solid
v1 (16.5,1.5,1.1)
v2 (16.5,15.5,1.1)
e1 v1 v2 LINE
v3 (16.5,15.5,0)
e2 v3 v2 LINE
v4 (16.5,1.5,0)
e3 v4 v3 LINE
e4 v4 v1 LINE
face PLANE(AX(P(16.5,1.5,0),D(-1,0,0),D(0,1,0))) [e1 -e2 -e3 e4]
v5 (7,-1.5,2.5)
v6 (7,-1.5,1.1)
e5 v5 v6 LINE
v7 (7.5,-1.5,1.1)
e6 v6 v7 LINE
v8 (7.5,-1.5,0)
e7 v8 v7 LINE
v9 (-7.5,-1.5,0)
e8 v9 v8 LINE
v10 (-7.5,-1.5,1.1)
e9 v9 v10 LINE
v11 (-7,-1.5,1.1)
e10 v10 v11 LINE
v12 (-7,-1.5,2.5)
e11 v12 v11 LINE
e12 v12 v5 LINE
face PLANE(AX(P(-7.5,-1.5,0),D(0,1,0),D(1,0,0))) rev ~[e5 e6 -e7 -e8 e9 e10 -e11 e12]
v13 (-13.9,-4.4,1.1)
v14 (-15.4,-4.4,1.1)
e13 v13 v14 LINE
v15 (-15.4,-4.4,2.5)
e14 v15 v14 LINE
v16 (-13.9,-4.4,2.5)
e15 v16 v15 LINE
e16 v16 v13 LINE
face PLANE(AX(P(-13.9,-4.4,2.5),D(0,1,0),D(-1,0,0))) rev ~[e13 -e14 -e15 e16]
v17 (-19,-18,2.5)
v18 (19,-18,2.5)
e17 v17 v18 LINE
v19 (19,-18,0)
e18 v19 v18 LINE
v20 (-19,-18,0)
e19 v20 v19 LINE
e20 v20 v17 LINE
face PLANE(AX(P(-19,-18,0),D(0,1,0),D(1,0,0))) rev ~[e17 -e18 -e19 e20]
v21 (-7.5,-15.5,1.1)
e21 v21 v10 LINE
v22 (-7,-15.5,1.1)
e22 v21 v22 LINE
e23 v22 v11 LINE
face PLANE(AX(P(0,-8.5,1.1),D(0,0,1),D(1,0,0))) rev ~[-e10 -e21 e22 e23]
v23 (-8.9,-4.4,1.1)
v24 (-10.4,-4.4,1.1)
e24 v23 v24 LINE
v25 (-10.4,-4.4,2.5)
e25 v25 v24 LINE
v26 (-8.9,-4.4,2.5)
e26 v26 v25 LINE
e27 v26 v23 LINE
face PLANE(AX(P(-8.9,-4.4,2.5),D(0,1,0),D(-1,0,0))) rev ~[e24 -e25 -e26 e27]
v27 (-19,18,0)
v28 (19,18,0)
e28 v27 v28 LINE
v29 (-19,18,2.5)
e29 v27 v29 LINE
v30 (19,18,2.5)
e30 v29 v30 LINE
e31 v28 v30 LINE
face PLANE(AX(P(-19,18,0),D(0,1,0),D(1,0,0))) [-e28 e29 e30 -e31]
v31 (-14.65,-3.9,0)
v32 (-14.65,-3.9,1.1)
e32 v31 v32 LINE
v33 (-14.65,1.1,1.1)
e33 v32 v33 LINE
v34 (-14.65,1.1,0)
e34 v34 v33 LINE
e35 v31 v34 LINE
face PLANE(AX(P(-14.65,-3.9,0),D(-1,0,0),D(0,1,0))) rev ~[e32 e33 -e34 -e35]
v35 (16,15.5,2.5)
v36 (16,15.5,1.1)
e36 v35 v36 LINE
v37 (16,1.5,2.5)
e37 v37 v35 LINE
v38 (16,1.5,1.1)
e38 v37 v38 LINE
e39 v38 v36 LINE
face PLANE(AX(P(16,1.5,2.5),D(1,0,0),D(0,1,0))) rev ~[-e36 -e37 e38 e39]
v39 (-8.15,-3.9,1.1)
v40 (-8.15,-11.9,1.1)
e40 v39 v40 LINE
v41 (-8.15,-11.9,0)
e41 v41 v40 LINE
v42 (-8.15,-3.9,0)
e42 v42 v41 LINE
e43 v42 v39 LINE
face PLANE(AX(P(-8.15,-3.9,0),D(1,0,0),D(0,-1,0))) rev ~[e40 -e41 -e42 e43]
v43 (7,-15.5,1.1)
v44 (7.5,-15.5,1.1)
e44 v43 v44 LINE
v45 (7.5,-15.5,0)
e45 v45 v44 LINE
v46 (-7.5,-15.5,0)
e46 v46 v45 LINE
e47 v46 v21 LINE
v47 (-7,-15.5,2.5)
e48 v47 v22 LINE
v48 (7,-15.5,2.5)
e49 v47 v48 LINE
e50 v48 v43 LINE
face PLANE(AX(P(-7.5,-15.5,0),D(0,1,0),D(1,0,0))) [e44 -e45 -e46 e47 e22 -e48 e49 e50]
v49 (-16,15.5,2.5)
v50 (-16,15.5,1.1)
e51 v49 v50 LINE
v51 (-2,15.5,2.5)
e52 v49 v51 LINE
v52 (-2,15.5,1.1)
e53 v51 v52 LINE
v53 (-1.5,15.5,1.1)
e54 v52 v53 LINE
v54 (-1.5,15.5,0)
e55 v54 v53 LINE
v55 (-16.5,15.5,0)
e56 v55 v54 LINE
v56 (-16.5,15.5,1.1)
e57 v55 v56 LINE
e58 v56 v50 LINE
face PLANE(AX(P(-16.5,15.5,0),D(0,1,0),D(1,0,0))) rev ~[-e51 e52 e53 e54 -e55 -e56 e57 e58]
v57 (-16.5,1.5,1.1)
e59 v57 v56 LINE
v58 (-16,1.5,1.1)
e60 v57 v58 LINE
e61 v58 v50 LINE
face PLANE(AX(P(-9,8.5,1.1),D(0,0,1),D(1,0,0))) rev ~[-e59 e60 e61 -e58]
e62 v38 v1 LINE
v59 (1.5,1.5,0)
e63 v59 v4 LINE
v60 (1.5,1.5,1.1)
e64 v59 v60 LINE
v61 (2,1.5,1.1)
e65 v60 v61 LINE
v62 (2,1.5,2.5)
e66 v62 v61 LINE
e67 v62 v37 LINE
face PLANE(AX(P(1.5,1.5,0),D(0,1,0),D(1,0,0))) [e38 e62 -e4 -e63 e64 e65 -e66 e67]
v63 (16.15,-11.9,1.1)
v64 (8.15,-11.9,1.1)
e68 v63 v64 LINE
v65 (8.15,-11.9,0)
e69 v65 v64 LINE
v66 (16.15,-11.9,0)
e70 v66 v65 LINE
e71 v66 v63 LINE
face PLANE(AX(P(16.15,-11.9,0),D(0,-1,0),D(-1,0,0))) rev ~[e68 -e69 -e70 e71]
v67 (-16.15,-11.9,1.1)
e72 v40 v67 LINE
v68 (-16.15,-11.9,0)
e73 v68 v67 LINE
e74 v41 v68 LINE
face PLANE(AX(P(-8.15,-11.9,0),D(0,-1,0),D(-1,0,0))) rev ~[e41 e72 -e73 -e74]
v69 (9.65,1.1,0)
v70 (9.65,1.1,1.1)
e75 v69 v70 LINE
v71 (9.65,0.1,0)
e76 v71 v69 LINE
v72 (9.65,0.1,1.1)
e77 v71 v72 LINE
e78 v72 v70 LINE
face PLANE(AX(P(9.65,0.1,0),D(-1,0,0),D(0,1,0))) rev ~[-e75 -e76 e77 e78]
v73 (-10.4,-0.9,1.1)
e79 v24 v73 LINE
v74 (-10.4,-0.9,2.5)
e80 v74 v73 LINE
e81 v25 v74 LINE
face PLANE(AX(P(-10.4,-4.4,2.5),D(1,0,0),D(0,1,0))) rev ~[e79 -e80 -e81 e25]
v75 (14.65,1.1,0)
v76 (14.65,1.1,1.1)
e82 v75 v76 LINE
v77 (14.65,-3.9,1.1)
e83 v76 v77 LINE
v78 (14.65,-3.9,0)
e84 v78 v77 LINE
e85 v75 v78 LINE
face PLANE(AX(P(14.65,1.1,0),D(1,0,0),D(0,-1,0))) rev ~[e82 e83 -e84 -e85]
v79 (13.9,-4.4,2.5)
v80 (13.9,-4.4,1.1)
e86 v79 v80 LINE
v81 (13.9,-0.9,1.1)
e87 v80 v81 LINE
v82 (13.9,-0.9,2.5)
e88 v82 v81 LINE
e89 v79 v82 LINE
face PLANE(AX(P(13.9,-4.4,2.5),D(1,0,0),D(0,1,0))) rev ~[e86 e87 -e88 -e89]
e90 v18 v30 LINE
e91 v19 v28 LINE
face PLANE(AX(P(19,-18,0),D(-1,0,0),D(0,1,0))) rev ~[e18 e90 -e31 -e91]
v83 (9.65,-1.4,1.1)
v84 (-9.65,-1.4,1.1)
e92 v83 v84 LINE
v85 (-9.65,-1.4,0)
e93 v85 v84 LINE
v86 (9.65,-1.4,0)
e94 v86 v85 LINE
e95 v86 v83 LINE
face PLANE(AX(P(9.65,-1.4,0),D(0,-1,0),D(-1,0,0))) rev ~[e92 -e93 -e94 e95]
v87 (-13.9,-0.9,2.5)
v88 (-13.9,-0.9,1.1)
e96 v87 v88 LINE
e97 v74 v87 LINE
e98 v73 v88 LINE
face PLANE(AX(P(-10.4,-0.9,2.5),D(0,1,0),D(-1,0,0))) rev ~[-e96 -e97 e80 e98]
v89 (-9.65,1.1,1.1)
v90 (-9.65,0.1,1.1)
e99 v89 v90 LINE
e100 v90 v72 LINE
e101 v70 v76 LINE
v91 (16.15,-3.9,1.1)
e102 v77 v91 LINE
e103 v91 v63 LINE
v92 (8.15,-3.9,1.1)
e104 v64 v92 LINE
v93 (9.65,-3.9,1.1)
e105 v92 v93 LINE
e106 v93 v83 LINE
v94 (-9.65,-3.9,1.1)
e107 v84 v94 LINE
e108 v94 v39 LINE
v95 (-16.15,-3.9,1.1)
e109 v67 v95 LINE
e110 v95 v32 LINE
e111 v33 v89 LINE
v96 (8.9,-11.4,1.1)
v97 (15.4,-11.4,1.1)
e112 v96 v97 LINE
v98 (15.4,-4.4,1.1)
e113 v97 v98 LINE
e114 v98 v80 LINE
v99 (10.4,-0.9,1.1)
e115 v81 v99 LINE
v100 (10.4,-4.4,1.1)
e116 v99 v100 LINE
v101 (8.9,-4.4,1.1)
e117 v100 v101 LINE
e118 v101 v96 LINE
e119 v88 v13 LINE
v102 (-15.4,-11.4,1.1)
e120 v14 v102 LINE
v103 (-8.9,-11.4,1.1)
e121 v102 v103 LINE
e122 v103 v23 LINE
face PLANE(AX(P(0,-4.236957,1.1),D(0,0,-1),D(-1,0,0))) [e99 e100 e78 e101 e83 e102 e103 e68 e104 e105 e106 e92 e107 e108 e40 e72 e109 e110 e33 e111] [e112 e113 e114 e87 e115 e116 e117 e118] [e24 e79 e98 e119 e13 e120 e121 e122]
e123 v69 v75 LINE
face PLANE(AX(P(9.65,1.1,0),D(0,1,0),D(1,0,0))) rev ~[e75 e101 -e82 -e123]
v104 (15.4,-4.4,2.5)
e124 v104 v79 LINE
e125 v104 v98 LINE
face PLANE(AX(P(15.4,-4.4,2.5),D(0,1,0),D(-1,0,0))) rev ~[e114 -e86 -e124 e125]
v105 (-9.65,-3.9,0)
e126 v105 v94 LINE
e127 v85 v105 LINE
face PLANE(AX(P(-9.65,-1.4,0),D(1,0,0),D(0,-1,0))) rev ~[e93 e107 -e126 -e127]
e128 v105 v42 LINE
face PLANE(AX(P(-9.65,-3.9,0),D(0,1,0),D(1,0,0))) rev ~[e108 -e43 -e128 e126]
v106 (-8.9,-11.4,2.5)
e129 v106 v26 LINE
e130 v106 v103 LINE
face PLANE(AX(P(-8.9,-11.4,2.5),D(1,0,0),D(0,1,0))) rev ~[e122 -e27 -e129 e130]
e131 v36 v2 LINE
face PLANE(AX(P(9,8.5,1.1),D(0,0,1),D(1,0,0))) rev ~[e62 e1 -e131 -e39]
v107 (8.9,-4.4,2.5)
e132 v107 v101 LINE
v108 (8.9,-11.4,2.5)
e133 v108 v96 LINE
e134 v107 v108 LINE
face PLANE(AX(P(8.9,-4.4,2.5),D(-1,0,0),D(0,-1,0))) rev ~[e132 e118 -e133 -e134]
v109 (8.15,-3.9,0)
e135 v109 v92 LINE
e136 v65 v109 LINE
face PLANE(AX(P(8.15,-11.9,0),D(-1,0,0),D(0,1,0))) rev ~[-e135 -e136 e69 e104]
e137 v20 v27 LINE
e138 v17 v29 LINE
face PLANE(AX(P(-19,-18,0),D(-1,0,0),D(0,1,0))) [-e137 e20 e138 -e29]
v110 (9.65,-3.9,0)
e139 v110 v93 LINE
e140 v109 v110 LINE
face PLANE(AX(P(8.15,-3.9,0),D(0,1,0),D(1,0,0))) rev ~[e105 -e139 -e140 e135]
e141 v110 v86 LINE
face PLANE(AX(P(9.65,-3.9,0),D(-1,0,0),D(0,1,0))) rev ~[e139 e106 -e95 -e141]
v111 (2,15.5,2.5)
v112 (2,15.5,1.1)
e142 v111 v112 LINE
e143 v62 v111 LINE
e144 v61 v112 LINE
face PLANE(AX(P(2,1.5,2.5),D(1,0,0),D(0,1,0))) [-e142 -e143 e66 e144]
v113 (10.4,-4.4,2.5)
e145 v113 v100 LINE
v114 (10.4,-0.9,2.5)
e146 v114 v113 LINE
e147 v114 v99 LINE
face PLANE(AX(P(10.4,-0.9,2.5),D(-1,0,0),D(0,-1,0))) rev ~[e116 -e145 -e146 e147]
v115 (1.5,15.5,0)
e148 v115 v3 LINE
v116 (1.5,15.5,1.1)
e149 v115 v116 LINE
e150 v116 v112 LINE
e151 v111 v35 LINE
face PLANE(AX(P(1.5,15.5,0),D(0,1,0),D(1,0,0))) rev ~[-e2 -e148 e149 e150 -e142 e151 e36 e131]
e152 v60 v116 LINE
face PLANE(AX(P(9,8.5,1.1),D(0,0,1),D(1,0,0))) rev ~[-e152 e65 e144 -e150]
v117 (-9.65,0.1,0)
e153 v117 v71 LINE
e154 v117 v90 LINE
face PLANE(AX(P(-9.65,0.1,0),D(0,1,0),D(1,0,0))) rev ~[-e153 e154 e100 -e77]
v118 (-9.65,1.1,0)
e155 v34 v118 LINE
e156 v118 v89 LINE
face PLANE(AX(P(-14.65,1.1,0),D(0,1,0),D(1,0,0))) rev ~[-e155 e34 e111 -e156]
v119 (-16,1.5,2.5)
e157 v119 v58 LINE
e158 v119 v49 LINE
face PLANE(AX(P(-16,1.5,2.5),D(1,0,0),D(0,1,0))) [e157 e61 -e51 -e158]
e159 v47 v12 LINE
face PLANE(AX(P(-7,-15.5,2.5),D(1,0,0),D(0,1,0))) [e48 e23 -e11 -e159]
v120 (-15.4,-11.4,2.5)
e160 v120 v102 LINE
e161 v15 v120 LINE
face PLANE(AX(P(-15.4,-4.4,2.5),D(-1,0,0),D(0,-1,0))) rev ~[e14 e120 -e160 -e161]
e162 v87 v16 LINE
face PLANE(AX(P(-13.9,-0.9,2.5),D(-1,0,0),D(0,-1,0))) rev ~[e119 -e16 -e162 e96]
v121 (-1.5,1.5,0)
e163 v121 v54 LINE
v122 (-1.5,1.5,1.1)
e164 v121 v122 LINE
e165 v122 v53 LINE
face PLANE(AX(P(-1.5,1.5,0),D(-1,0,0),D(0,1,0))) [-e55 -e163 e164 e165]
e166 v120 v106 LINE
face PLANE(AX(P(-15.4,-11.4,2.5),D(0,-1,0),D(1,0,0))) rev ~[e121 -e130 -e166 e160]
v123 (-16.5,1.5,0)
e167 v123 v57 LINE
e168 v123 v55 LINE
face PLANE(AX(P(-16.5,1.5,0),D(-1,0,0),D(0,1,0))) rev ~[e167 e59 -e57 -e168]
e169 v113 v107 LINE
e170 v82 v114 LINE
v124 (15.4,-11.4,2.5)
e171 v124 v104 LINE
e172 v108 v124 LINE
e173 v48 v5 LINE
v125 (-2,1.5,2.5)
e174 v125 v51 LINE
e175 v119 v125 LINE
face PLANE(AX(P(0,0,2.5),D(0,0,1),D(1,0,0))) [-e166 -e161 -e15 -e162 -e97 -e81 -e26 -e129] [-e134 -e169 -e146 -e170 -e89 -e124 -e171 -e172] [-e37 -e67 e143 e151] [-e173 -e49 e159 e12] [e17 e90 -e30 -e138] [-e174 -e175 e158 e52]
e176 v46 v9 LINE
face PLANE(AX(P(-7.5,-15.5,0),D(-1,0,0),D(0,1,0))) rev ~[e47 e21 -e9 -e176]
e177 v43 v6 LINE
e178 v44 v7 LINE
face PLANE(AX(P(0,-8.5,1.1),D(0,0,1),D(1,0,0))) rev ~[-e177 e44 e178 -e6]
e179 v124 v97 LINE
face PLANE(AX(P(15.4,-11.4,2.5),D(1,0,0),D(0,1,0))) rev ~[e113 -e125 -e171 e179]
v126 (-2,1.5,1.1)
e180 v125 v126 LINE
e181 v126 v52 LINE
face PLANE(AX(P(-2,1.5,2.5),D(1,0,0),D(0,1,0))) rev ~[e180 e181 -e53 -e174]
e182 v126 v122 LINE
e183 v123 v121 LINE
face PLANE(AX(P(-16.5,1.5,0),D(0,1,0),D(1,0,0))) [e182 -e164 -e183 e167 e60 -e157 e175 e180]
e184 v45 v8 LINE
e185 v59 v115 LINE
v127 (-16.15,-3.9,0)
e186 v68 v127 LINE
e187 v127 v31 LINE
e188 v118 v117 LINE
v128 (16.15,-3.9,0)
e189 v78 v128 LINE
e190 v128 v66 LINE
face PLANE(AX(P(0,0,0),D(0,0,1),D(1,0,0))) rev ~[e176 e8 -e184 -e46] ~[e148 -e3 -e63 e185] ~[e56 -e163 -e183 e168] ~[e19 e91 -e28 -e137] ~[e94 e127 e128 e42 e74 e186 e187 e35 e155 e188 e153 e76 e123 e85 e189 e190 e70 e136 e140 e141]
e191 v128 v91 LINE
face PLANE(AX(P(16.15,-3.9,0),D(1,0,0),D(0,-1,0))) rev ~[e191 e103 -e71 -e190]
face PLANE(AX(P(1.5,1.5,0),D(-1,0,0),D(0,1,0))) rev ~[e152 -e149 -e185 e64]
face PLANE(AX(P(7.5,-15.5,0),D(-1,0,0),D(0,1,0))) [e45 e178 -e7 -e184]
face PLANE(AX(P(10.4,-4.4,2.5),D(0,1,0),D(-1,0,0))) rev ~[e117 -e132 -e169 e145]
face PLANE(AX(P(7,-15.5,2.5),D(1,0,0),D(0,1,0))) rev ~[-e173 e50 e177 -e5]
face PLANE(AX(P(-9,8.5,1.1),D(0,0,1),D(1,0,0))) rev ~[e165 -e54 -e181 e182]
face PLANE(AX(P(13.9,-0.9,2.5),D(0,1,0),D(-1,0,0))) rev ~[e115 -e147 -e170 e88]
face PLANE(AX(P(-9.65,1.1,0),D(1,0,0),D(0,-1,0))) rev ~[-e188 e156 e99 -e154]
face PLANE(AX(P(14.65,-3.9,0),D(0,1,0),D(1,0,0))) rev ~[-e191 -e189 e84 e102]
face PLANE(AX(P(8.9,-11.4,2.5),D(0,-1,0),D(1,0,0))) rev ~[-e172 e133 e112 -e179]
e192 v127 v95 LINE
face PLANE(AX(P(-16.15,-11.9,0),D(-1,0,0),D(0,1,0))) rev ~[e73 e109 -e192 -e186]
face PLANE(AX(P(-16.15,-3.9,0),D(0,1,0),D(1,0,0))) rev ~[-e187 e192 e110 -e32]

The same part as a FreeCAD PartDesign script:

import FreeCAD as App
import Part
import Sketcher
from FreeCAD import Vector
Q = App.Units.Quantity


def add_polygon(sketch, points):
    """Adds a closed chain of lines whose ends are joined by coincident constraints."""
    first, n = sketch.GeometryCount, len(points)
    for a, b in zip(points, points[1:] + points[:1]):
        sketch.addGeometry(Part.LineSegment(App.Vector(*a, 0), App.Vector(*b, 0)), False)
    for i in range(n):
        sketch.addConstraint(Sketcher.Constraint("Coincident", first + i, 2, first + (i + 1) % n, 1))

doc = App.newDocument("Part")
body = doc.addObject("PartDesign::Body", "Body")

sketch1 = body.newObject("Sketcher::SketchObject", "Sketch")
sketch1.AttachmentSupport = (doc.getObject("XY_Plane"), [""])
sketch1.MapMode = "FlatFace"
add_polygon(sketch1, [(-19, 18), (-19, -18), (19, -18), (19, 18)])
sketch1.addConstraint([
    Sketcher.Constraint("Vertical", 0),
    Sketcher.Constraint("Horizontal", 1),
    Sketcher.Constraint("Vertical", 2),
    Sketcher.Constraint("Horizontal", 3),
    Sketcher.Constraint("Symmetric", 0, 2, 2, 2, -1, 1),
    Sketcher.Constraint("DistanceX", 1, 1, 1, 2, Q("38 mm")),
    Sketcher.Constraint("DistanceY", 0, 2, 0, 1, Q("36 mm")),
])
pad1 = body.newObject("PartDesign::Pad", "Pad")
pad1.Profile = sketch1
pad1.Length = 2.5

sketch2 = body.newObject("Sketcher::SketchObject", "Sketch001")
sketch2.AttachmentSupport = (doc.getObject("XY_Plane"), [""])
sketch2.MapMode = "FlatFace"
sketch2.AttachmentOffset = App.Placement(Vector(0, 0, 2.5), App.Rotation())
add_polygon(sketch2, [(-16, 15.5), (-16, 1.5), (-2, 1.5), (-2, 15.5)])
add_polygon(sketch2, [(2, 15.5), (2, 1.5), (16, 1.5), (16, 15.5)])
add_polygon(sketch2, [(-7, -1.5), (-7, -15.5), (7, -15.5), (7, -1.5)])
add_polygon(sketch2, [(10.4, -0.9), (10.4, -4.4), (8.9, -4.4), (8.9, -11.4), (15.4, -11.4), (15.4, -4.4), (13.9, -4.4), (13.9, -0.9)])
add_polygon(sketch2, [(-15.4, -11.4), (-8.9, -11.4), (-8.9, -4.4), (-10.4, -4.4), (-10.4, -0.9), (-13.9, -0.9), (-13.9, -4.4), (-15.4, -4.4)])
sketch2.addConstraint([
    Sketcher.Constraint("Vertical", 0),
    Sketcher.Constraint("Horizontal", 1),
    Sketcher.Constraint("Vertical", 2),
    Sketcher.Constraint("Horizontal", 3),
    Sketcher.Constraint("Vertical", 4),
    Sketcher.Constraint("Horizontal", 5),
    Sketcher.Constraint("Vertical", 6),
    Sketcher.Constraint("Horizontal", 7),
    Sketcher.Constraint("Vertical", 8),
    Sketcher.Constraint("Horizontal", 9),
    Sketcher.Constraint("Vertical", 10),
    Sketcher.Constraint("Horizontal", 11),
    Sketcher.Constraint("Vertical", 12),
    Sketcher.Constraint("Horizontal", 13),
    Sketcher.Constraint("Vertical", 14),
    Sketcher.Constraint("Horizontal", 15),
    Sketcher.Constraint("Vertical", 16),
    Sketcher.Constraint("Horizontal", 17),
    Sketcher.Constraint("Vertical", 18),
    Sketcher.Constraint("Horizontal", 19),
    Sketcher.Constraint("Horizontal", 20),
    Sketcher.Constraint("Vertical", 21),
    Sketcher.Constraint("Horizontal", 22),
    Sketcher.Constraint("Vertical", 23),
    Sketcher.Constraint("Horizontal", 24),
    Sketcher.Constraint("Vertical", 25),
    Sketcher.Constraint("Horizontal", 26),
    Sketcher.Constraint("Vertical", 27),
    Sketcher.Constraint("Symmetric", 1, 2, 4, 2, -2),
    Sketcher.Constraint("Symmetric", 3, 2, 6, 2, -2),
    Sketcher.Constraint("Symmetric", 14, 2, 20, 2, -2),
    Sketcher.Constraint("Symmetric", 12, 2, 22, 2, -2),
    Sketcher.Constraint("Symmetric", 18, 2, 24, 2, -2),
    Sketcher.Constraint("Symmetric", 16, 2, 26, 2, -2),
    Sketcher.Constraint("Horizontal", 13, 2, 16, 2),
    Sketcher.Constraint("Equal", 7, 9),
    Sketcher.Constraint("Equal", 13, 17),
    Sketcher.Constraint("Equal", 11, 0),
    Sketcher.Constraint("Equal", 6, 8),
    Sketcher.Constraint("Equal", 24, 12),
    Sketcher.Constraint("DistanceX", 1, 1, 1, 2, Q("14 mm")),
    Sketcher.Constraint("DistanceY", 14, 2, 14, 1, Q("7 mm")),
    Sketcher.Constraint("DistanceX", 13, 2, 13, 1, Q("1.5 mm")),
    Sketcher.Constraint("DistanceX", 15, 1, 15, 2, Q("6.5 mm")),
    Sketcher.Constraint("DistanceX", 0, 2, -1, 1, Q("16 mm")),
    Sketcher.Constraint("DistanceX", 8, 2, -1, 1, Q("7 mm")),
    Sketcher.Constraint("DistanceY", 8, 2, 1, 2, Q("17 mm")),
    Sketcher.Constraint("DistanceY", -1, 1, 0, 2, Q("1.5 mm")),
    Sketcher.Constraint("DistanceX", -1, 1, 12, 2, Q("10.4 mm")),
    Sketcher.Constraint("DistanceY", 12, 2, -1, 1, Q("4.4 mm")),
])
pocket1 = body.newObject("PartDesign::Pocket", "Pocket")
pocket1.Profile = sketch2
pocket1.Length = 1.4

sketch3 = body.newObject("Sketcher::SketchObject", "Sketch002")
sketch3.AttachmentSupport = (doc.getObject("XY_Plane"), [""])
sketch3.MapMode = "FlatFace"
add_polygon(sketch3, [(1.5, 15.5), (1.5, 1.5), (16.5, 1.5), (16.5, 15.5)])
add_polygon(sketch3, [(-16.5, 15.5), (-16.5, 1.5), (-1.5, 1.5), (-1.5, 15.5)])
add_polygon(sketch3, [(-7.5, -1.5), (-7.5, -15.5), (7.5, -15.5), (7.5, -1.5)])
add_polygon(sketch3, [(8.2, -3.9), (8.2, -11.9), (16.1, -11.9), (16.1, -3.9), (14.7, -3.9), (14.7, 1.1), (9.7, 1.1), (9.7, 0.1), (-9.7, 0.1), (-9.7, 1.1), (-14.7, 1.1), (-14.7, -3.9), (-16.1, -3.9), (-16.1, -11.9), (-8.2, -11.9), (-8.2, -3.9), (-9.7, -3.9), (-9.7, -1.4), (9.7, -1.4), (9.7, -3.9)])
sketch3.addConstraint([
    Sketcher.Constraint("Vertical", 0),
    Sketcher.Constraint("Horizontal", 1),
    Sketcher.Constraint("Vertical", 2),
    Sketcher.Constraint("Horizontal", 3),
    Sketcher.Constraint("Vertical", 4),
    Sketcher.Constraint("Horizontal", 5),
    Sketcher.Constraint("Vertical", 6),
    Sketcher.Constraint("Horizontal", 7),
    Sketcher.Constraint("Vertical", 8),
    Sketcher.Constraint("Horizontal", 9),
    Sketcher.Constraint("Vertical", 10),
    Sketcher.Constraint("Horizontal", 11),
    Sketcher.Constraint("Vertical", 12),
    Sketcher.Constraint("Horizontal", 13),
    Sketcher.Constraint("Vertical", 14),
    Sketcher.Constraint("Horizontal", 15),
    Sketcher.Constraint("Vertical", 16),
    Sketcher.Constraint("Horizontal", 17),
    Sketcher.Constraint("Vertical", 18),
    Sketcher.Constraint("Horizontal", 19),
    Sketcher.Constraint("Vertical", 20),
    Sketcher.Constraint("Horizontal", 21),
    Sketcher.Constraint("Vertical", 22),
    Sketcher.Constraint("Horizontal", 23),
    Sketcher.Constraint("Vertical", 24),
    Sketcher.Constraint("Horizontal", 25),
    Sketcher.Constraint("Vertical", 26),
    Sketcher.Constraint("Horizontal", 27),
    Sketcher.Constraint("Vertical", 28),
    Sketcher.Constraint("Horizontal", 29),
    Sketcher.Constraint("Vertical", 30),
    Sketcher.Constraint("Horizontal", 31),
    Sketcher.Constraint("Symmetric", 1, 2, 4, 2, -2),
    Sketcher.Constraint("Symmetric", 3, 2, 6, 2, -2),
    Sketcher.Constraint("Symmetric", 17, 2, 20, 2, -2),
    Sketcher.Constraint("Symmetric", 15, 2, 22, 2, -2),
    Sketcher.Constraint("Symmetric", 13, 2, 24, 2, -2),
    Sketcher.Constraint("Symmetric", 27, 2, 30, 2, -2),
    Sketcher.Constraint("Horizontal", 23, 2, 26, 2),
    Sketcher.Constraint("Vertical", 20, 2, 27, 2),
    Sketcher.Constraint("Equal", 7, 9),
    Sketcher.Constraint("Equal", 13, 25),
    Sketcher.Constraint("Equal", 23, 27),
    Sketcher.Constraint("Equal", 6, 8),
    Sketcher.Constraint("Equal", 25, 12),
    Sketcher.Constraint("Equal", 21, 16),
    Sketcher.Constraint("DistanceX", 1, 1, 1, 2, Q("15 mm")),
    Sketcher.Constraint("DistanceX", 13, 1, 13, 2, Q("8 mm")),
    Sketcher.Constraint("DistanceX", 17, 2, 17, 1, Q("5 mm")),
    Sketcher.Constraint("DistanceY", 0, 2, 0, 1, Q("14 mm")),
    Sketcher.Constraint("DistanceY", 18, 2, 18, 1, Q("1 mm")),
    Sketcher.Constraint("DistanceX", 19, 2, 19, 1, Q("19.3 mm")),
    Sketcher.Constraint("DistanceY", 28, 1, 28, 2, Q("2.5 mm")),
    Sketcher.Constraint("DistanceX", 4, 2, 0, 2, Q("18 mm")),
    Sketcher.Constraint("DistanceX", 8, 2, 5, 2, Q("6 mm")),
    Sketcher.Constraint("DistanceY", 8, 2, 5, 2, Q("17 mm")),
    Sketcher.Constraint("DistanceY", -1, 1, 0, 2, Q("1.5 mm")),
    Sketcher.Constraint("DistanceY", 12, 2, -1, 1, Q("11.9 mm")),
])
pocket2 = body.newObject("PartDesign::Pocket", "Pocket001")
pocket2.Profile = sketch3
pocket2.Length = 1.1
pocket2.Reversed = True

doc.recompute()
